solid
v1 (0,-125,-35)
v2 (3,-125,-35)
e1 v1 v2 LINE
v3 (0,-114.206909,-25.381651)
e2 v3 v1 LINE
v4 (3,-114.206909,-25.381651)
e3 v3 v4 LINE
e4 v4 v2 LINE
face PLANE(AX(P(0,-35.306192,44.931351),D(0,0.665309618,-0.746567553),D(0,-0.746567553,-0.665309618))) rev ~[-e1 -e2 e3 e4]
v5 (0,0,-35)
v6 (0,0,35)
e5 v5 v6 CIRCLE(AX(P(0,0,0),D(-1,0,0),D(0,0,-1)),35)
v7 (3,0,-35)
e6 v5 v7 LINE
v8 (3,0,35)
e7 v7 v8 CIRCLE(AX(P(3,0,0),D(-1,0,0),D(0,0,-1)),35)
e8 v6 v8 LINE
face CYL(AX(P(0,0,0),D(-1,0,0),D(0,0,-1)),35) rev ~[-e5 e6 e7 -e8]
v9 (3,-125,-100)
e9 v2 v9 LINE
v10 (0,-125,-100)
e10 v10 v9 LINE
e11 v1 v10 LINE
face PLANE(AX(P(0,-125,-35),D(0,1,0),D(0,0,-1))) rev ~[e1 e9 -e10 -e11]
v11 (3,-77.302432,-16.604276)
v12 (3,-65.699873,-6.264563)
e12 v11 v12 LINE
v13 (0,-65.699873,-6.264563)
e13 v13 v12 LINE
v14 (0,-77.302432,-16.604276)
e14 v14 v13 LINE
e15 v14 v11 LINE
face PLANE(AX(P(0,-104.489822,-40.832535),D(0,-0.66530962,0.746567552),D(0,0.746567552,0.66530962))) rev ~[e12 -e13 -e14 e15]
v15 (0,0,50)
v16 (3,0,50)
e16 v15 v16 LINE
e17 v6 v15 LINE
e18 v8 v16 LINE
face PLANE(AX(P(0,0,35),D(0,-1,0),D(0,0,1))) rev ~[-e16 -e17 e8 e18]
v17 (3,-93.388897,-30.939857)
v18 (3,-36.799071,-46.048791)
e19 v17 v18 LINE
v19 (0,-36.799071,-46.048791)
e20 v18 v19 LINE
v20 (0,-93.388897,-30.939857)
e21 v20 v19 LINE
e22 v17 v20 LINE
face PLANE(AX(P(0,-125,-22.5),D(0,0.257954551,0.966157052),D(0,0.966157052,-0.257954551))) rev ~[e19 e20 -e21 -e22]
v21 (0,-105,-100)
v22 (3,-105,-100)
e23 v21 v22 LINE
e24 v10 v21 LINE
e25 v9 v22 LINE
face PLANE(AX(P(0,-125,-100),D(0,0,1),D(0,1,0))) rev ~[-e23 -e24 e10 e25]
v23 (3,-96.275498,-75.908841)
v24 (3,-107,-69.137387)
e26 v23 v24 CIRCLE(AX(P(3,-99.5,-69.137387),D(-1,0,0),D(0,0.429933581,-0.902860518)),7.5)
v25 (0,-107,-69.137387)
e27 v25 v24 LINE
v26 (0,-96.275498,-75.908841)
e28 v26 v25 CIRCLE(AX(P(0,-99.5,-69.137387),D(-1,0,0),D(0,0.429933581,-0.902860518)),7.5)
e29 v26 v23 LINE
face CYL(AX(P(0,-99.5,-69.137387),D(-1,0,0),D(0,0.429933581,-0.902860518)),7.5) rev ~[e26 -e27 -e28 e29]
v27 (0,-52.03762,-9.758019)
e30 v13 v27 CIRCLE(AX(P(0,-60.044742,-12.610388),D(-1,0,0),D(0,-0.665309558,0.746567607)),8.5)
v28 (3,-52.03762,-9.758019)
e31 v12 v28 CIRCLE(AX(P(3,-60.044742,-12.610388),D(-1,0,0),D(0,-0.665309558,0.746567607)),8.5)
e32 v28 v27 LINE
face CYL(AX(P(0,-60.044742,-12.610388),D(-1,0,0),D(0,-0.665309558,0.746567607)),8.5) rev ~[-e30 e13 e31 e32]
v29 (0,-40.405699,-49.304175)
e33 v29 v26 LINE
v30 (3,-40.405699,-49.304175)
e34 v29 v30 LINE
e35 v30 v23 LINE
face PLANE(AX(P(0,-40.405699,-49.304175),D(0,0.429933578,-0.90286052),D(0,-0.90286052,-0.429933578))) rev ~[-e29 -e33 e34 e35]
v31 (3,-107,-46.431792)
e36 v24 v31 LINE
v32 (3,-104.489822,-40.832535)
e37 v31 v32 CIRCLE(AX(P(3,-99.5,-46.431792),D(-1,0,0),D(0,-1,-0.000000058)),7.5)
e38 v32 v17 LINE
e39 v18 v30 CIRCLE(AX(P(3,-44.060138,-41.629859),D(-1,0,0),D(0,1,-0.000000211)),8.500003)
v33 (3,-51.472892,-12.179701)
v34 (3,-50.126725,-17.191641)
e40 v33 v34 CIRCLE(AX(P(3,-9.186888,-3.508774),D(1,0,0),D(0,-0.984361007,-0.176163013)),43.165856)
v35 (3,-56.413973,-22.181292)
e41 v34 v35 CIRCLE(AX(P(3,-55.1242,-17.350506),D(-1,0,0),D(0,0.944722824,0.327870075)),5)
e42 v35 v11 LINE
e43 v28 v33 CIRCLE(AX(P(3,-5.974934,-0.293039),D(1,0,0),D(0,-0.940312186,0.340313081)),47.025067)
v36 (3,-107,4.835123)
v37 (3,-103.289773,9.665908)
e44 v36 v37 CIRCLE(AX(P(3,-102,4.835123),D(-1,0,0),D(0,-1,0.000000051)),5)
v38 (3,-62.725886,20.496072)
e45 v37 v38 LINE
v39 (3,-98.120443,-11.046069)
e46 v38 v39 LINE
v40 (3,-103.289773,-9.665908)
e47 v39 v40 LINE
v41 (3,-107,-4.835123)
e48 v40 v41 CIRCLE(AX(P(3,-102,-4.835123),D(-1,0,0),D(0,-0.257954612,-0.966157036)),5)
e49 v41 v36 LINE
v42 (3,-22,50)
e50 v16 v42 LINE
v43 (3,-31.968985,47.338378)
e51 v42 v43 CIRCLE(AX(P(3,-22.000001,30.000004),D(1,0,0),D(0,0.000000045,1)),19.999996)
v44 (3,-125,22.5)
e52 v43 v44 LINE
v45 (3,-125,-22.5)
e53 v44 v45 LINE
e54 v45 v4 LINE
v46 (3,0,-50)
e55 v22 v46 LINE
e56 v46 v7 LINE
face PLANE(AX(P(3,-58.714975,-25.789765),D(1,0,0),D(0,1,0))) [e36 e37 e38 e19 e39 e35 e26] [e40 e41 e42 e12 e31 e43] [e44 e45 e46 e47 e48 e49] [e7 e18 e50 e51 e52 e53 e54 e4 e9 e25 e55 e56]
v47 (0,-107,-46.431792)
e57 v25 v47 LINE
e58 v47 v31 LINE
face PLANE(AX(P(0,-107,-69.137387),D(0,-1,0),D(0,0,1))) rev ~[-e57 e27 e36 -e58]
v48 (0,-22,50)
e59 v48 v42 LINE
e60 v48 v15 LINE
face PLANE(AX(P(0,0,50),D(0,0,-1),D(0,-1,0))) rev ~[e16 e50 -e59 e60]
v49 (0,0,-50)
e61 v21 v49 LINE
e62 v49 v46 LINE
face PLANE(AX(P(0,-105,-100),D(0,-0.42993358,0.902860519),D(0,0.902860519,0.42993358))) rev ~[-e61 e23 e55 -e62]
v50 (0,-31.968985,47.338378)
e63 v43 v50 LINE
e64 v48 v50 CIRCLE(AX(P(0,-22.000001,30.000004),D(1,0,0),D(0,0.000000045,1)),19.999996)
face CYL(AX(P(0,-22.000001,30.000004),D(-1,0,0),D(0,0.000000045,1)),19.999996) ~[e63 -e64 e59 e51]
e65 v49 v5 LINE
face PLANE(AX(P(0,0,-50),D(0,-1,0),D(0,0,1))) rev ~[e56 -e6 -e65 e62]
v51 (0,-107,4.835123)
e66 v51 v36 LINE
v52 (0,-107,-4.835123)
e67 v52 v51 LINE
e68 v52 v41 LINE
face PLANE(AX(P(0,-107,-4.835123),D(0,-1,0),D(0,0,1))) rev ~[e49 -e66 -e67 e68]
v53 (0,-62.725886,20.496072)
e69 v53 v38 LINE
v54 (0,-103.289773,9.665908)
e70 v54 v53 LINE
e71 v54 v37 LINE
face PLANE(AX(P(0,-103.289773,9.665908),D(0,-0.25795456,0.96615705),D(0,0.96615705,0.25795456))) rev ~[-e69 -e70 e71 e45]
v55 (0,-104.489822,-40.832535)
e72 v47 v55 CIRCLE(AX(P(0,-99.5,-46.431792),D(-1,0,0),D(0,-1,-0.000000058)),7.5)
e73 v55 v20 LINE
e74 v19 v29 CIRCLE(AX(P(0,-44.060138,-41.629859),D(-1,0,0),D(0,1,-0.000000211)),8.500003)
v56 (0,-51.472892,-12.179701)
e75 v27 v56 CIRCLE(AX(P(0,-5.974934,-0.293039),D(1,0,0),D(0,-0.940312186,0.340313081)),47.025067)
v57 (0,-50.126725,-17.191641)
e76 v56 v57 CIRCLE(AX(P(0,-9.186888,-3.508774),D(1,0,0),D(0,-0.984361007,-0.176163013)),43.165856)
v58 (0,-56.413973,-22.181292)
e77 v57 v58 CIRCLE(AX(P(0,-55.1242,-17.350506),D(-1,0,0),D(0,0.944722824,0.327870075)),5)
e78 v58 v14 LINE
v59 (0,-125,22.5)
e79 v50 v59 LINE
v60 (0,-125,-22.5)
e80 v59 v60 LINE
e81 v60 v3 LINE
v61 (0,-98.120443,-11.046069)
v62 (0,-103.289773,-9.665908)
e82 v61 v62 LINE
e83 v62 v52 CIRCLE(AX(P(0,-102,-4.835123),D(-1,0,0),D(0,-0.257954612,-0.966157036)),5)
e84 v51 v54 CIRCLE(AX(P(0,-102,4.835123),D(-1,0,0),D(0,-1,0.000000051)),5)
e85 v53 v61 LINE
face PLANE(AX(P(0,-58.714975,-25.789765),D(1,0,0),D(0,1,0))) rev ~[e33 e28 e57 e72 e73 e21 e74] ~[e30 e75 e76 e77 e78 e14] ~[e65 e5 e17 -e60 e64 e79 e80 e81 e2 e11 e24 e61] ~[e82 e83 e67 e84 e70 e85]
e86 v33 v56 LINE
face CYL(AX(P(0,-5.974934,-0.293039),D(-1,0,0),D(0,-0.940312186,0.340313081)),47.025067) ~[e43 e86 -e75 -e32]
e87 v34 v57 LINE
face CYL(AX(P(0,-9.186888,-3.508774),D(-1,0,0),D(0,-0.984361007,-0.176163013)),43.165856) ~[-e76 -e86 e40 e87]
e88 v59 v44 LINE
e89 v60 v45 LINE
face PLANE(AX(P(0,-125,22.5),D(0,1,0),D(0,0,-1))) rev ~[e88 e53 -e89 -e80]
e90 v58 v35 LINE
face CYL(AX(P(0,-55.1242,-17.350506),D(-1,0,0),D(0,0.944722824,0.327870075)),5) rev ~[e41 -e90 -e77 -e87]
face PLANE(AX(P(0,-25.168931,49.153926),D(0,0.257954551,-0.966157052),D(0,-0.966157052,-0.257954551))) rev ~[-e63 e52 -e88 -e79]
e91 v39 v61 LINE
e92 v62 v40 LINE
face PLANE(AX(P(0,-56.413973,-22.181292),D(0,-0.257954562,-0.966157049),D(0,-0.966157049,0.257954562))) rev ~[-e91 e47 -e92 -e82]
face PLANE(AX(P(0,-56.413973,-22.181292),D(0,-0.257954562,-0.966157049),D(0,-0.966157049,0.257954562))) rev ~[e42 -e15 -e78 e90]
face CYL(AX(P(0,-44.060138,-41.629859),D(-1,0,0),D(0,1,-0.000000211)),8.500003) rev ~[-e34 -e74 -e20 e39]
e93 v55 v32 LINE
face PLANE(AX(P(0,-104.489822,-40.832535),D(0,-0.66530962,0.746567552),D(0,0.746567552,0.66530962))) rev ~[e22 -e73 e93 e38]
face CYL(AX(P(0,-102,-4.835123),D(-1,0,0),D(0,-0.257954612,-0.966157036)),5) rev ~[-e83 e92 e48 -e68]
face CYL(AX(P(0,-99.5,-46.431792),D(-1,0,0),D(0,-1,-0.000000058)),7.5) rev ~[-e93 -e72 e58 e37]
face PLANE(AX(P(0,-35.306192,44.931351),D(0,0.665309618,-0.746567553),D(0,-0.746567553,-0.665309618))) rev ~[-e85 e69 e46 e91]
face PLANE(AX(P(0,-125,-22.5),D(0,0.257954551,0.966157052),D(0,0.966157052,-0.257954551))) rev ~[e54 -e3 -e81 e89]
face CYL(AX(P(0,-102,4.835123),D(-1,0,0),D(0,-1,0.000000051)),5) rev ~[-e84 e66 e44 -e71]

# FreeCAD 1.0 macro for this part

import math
import FreeCAD as App
import Part
import Sketcher

doc = App.newDocument("Part")
body = doc.addObject("PartDesign::Body", "Body")

# Sketch on YZ plane
sketch1 = body.newObject("Sketcher::SketchObject", "Sketch")
sketch1.AttachmentSupport = (doc.getObject("YZ_Plane"), [""])
sketch1.MapMode = "FlatFace"
sketch1.addGeometry([
    Part.ArcOfCircle(Part.Circle(App.Vector(0, 0, 0), App.Vector(0, 0, 1), 35), math.radians(90), math.radians(270)),  # 0
    Part.LineSegment(App.Vector(0, 35, 0), App.Vector(0, 50, 0)),  # 1
    Part.LineSegment(App.Vector(0, 50, 0), App.Vector(-22, 50, 0)),  # 2
    Part.ArcOfCircle(Part.Circle(App.Vector(-22, 30, 0), App.Vector(0, 0, 1), 20), math.radians(90), math.radians(132)),  # 3
    Part.LineSegment(App.Vector(-35, 45, 0), App.Vector(-125, -35, 0)),  # 4
    Part.LineSegment(App.Vector(-125, -35, 0), App.Vector(-125, -100, 0)),  # 5
    Part.LineSegment(App.Vector(-125, -100, 0), App.Vector(-105, -100, 0)),  # 6
    Part.LineSegment(App.Vector(-105, -100, 0), App.Vector(0, -50, 0)),  # 7
    Part.LineSegment(App.Vector(0, -50, 0), App.Vector(0, -35, 0)),  # 8
    Part.LineSegment(App.Vector(-40, -49, 0), App.Vector(-96, -76, 0)),  # 9
    Part.ArcOfCircle(Part.Circle(App.Vector(-99, -69, 0), App.Vector(0, 0, 1), 8), math.radians(180), math.radians(295)),  # 10
    Part.LineSegment(App.Vector(-107, -69, 0), App.Vector(-107, -46, 0)),  # 11
    Part.ArcOfCircle(Part.Circle(App.Vector(-100, -46, 0), App.Vector(0, 0, 1), 7), math.radians(132), math.radians(180)),  # 12
    Part.LineSegment(App.Vector(-104, -41, 0), App.Vector(-66, -6, 0)),  # 13
    Part.ArcOfCircle(Part.Circle(App.Vector(-60, -13, 0), App.Vector(0, 0, 1), 9), math.radians(10), math.radians(132)),  # 14
    Part.ArcOfCircle(Part.Circle(App.Vector(-9, -4, 0), App.Vector(0, 0, 1), 43), math.radians(-170), math.radians(-132)),  # 15
    Part.ArcOfCircle(Part.Circle(App.Vector(-44, -42, 0), App.Vector(0, 0, 1), 8), math.radians(0), math.radians(48)),  # 16
    Part.ArcOfCircle(Part.Circle(App.Vector(-44, -42, 0), App.Vector(0, 0, 1), 9), math.radians(-65), math.radians(0)),  # 17
], False)
sketch1.addConstraint([
    Sketcher.Constraint("Coincident", 0, 1, 1, 1),
    Sketcher.Constraint("Coincident", 1, 2, 2, 1),
    Sketcher.Constraint("Tangent", 2, 2, 3, 1),
    Sketcher.Constraint("Tangent", 3, 2, 4, 1),
    Sketcher.Constraint("Coincident", 4, 2, 5, 1),
    Sketcher.Constraint("Coincident", 5, 2, 6, 1),
    Sketcher.Constraint("Coincident", 6, 2, 7, 1),
    Sketcher.Constraint("Coincident", 7, 2, 8, 1),
    Sketcher.Constraint("Coincident", 8, 2, 0, 2),
    Sketcher.Constraint("Tangent", 9, 2, 10, 2),
    Sketcher.Constraint("Tangent", 10, 1, 11, 1),
    Sketcher.Constraint("Tangent", 11, 2, 12, 2),
    Sketcher.Constraint("Tangent", 12, 1, 13, 1),
    Sketcher.Constraint("Tangent", 13, 2, 14, 2),
    Sketcher.Constraint("Tangent", 14, 1, 15, 1),
    Sketcher.Constraint("Tangent", 15, 2, 16, 2),
    Sketcher.Constraint("Tangent", 16, 1, 17, 2),
    Sketcher.Constraint("Tangent", 17, 1, 9, 1),
    Sketcher.Constraint("Vertical", 1),
    Sketcher.Constraint("Horizontal", 2),
    Sketcher.Constraint("Vertical", 5),
    Sketcher.Constraint("Horizontal", 6),
    Sketcher.Constraint("Vertical", 8),
    Sketcher.Constraint("Vertical", 11),
    Sketcher.Constraint("Coincident", 0, 3, -1, 1),
    Sketcher.Constraint("Equal", 10, 12),
    Sketcher.Constraint("Equal", 14, 16),
    Sketcher.Constraint("Symmetric", 1, 2, 7, 2, -1, 1),
    Sketcher.Constraint("PointOnObject", 0, 1, -2),
    Sketcher.Constraint("Parallel", 7, 9),
    Sketcher.Constraint("Parallel", 4, 13),
    Sketcher.Constraint("Horizontal", 4, 2, 8, 2),
    Sketcher.Constraint("Horizontal", 17, 3, 16, 1),
    Sketcher.Constraint("Radius", 0, 35.0),
    Sketcher.Constraint("Radius", 10, 7.5),
    Sketcher.Constraint("Radius", 14, 8.5),
    Sketcher.Constraint("DistanceX", 2, 2, 2, 1, 22.0),
    Sketcher.Constraint("DistanceX", 6, 1, 6, 2, 20.0),
    Sketcher.Constraint("DistanceY", 1, 1, 1, 2, 15.0),
    Sketcher.Constraint("DistanceY", 5, 2, 5, 1, 65.0),
    Sketcher.Constraint("DistanceX", 4, 2, -1, 1, 125.0),
    Sketcher.Constraint("DistanceX", 10, 1, -1, 1, 107.0),
    Sketcher.Constraint("DistanceY", 14, 1, -1, 1, 11.113001),
    Sketcher.Constraint("Radius", 3, 19.999996),
    Sketcher.Constraint("Radius", 15, 43.165856),
    Sketcher.Constraint("Radius", 17, 8.500003),
    Sketcher.Constraint("DistanceY", 10, 3, 14, 3, 56.526999),
    Sketcher.Constraint("DistanceX", 17, 1, -1, 1, 40.405699),
    Sketcher.Constraint("DistanceX", 13, 2, 14, 1, 14.0222),
])
pad1 = body.newObject("PartDesign::Pad", "Pad")
pad1.Profile = sketch1
pad1.Length = 3

# Sketch on YZ plane
sketch2 = body.newObject("Sketcher::SketchObject", "Sketch001")
sketch2.AttachmentSupport = (doc.getObject("YZ_Plane"), [""])
sketch2.MapMode = "FlatFace"
sketch2.addGeometry([
    Part.ArcOfCircle(Part.Circle(App.Vector(0, 0, 0), App.Vector(0, 0, 1), 35), math.radians(90), math.radians(270)),  # 0
    Part.LineSegment(App.Vector(0, 35, 0), App.Vector(0, 50, 0)),  # 1
    Part.LineSegment(App.Vector(0, 50, 0), App.Vector(-19, 50, 0)),  # 2
    Part.ArcOfCircle(Part.Circle(App.Vector(-19, 25, 0), App.Vector(0, 0, 1), 25), math.radians(90), math.radians(104.95)),  # 3
    Part.LineSegment(App.Vector(-25, 49, 0), App.Vector(-125, 22, 0)),  # 4
    Part.LineSegment(App.Vector(-125, 22, 0), App.Vector(-125, -22, 0)),  # 5
    Part.LineSegment(App.Vector(-125, -22, 0), App.Vector(-25, -49, 0)),  # 6
    Part.ArcOfCircle(Part.Circle(App.Vector(-19, -25, 0), App.Vector(0, 0, 1), 25), math.radians(-104.95), math.radians(-90)),  # 7
    Part.LineSegment(App.Vector(-19, -50, 0), App.Vector(0, -50, 0)),  # 8
    Part.LineSegment(App.Vector(0, -50, 0), App.Vector(0, -35, 0)),  # 9
    Part.ArcOfCircle(Part.Circle(App.Vector(-102, 5, 0), App.Vector(0, 0, 1), 5), math.radians(105), math.radians(180)),  # 10
    Part.LineSegment(App.Vector(-103, 10, 0), App.Vector(-56, 22, 0)),  # 11
    Part.ArcOfCircle(Part.Circle(App.Vector(-55, 17, 0), App.Vector(0, 0, 1), 5), math.radians(-20), math.radians(105)),  # 12
    Part.ArcOfCircle(Part.Circle(App.Vector(-6, 0, 0), App.Vector(0, 0, 1), 47), math.radians(160), math.radians(199)),  # 13
    Part.ArcOfCircle(Part.Circle(App.Vector(-55, -17, 0), App.Vector(0, 0, 1), 5), math.radians(-105), math.radians(19)),  # 14
    Part.LineSegment(App.Vector(-56, -22, 0), App.Vector(-103, -10, 0)),  # 15
    Part.ArcOfCircle(Part.Circle(App.Vector(-102, -5, 0), App.Vector(0, 0, 1), 5), math.radians(-180), math.radians(-105)),  # 16
    Part.LineSegment(App.Vector(-107, -5, 0), App.Vector(-107, 5, 0)),  # 17
], False)
sketch2.addConstraint([
    Sketcher.Constraint("Coincident", 0, 1, 1, 1),
    Sketcher.Constraint("Coincident", 1, 2, 2, 1),
    Sketcher.Constraint("Tangent", 2, 2, 3, 1),
    Sketcher.Constraint("Tangent", 3, 2, 4, 1),
    Sketcher.Constraint("Coincident", 4, 2, 5, 1),
    Sketcher.Constraint("Coincident", 5, 2, 6, 1),
    Sketcher.Constraint("Tangent", 6, 2, 7, 1),
    Sketcher.Constraint("Tangent", 7, 2, 8, 1),
    Sketcher.Constraint("Coincident", 8, 2, 9, 1),
    Sketcher.Constraint("Coincident", 9, 2, 0, 2),
    Sketcher.Constraint("Tangent", 10, 1, 11, 1),
    Sketcher.Constraint("Tangent", 11, 2, 12, 2),
    Sketcher.Constraint("Tangent", 12, 1, 13, 1),
    Sketcher.Constraint("Tangent", 13, 2, 14, 2),
    Sketcher.Constraint("Tangent", 14, 1, 15, 1),
    Sketcher.Constraint("Tangent", 15, 2, 16, 2),
    Sketcher.Constraint("Tangent", 16, 1, 17, 1),
    Sketcher.Constraint("Tangent", 17, 2, 10, 2),
    Sketcher.Constraint("Vertical", 1),
    Sketcher.Constraint("Horizontal", 2),
    Sketcher.Constraint("Vertical", 5),
    Sketcher.Constraint("Horizontal", 8),
    Sketcher.Constraint("Vertical", 9),
    Sketcher.Constraint("Vertical", 17),
    Sketcher.Constraint("Coincident", 0, 3, -1, 1),
    Sketcher.Constraint("Equal", 3, 7),
    Sketcher.Constraint("Equal", 10, 12),
    Sketcher.Constraint("Equal", 12, 14),
    Sketcher.Constraint("Equal", 14, 16),
    Sketcher.Constraint("Symmetric", 1, 2, 8, 2, -1, 1),
    Sketcher.Constraint("Symmetric", 3, 2, 6, 2, -1),
    Sketcher.Constraint("Symmetric", 10, 1, 15, 2, -1),
    Sketcher.Constraint("PointOnObject", 0, 1, -2),
    Sketcher.Constraint("Parallel", 4, 11),
    Sketcher.Constraint("Radius", 0, 35.0),
    Sketcher.Constraint("Radius", 10, 5.0),
    Sketcher.Constraint("DistanceY", 1, 1, 1, 2, 15.0),
    Sketcher.Constraint("DistanceY", 5, 2, 5, 1, 45.0),
    Sketcher.Constraint("DistanceX", 10, 3, -1, 1, 102.0),
    Sketcher.Constraint("DistanceX", 4, 2, -1, 1, 125.0),
    Sketcher.Constraint("Radius", 3, 25.000002),
    Sketcher.Constraint("Radius", 13, 47.025067),
    Sketcher.Constraint("DistanceX", 14, 3, -1, 1, 55.1242),
    Sketcher.Constraint("DistanceX", 2, 2, 2, 1, 18.720067),
    Sketcher.Constraint("DistanceY", 17, 1, 17, 2, 9.670246),
    Sketcher.Constraint("DistanceX", 12, 3, -1, 1, 54.894739),
])
pad2 = body.newObject("PartDesign::Pad", "Pad001")
pad2.Profile = sketch2
pad2.Length = 3

doc.recompute()
